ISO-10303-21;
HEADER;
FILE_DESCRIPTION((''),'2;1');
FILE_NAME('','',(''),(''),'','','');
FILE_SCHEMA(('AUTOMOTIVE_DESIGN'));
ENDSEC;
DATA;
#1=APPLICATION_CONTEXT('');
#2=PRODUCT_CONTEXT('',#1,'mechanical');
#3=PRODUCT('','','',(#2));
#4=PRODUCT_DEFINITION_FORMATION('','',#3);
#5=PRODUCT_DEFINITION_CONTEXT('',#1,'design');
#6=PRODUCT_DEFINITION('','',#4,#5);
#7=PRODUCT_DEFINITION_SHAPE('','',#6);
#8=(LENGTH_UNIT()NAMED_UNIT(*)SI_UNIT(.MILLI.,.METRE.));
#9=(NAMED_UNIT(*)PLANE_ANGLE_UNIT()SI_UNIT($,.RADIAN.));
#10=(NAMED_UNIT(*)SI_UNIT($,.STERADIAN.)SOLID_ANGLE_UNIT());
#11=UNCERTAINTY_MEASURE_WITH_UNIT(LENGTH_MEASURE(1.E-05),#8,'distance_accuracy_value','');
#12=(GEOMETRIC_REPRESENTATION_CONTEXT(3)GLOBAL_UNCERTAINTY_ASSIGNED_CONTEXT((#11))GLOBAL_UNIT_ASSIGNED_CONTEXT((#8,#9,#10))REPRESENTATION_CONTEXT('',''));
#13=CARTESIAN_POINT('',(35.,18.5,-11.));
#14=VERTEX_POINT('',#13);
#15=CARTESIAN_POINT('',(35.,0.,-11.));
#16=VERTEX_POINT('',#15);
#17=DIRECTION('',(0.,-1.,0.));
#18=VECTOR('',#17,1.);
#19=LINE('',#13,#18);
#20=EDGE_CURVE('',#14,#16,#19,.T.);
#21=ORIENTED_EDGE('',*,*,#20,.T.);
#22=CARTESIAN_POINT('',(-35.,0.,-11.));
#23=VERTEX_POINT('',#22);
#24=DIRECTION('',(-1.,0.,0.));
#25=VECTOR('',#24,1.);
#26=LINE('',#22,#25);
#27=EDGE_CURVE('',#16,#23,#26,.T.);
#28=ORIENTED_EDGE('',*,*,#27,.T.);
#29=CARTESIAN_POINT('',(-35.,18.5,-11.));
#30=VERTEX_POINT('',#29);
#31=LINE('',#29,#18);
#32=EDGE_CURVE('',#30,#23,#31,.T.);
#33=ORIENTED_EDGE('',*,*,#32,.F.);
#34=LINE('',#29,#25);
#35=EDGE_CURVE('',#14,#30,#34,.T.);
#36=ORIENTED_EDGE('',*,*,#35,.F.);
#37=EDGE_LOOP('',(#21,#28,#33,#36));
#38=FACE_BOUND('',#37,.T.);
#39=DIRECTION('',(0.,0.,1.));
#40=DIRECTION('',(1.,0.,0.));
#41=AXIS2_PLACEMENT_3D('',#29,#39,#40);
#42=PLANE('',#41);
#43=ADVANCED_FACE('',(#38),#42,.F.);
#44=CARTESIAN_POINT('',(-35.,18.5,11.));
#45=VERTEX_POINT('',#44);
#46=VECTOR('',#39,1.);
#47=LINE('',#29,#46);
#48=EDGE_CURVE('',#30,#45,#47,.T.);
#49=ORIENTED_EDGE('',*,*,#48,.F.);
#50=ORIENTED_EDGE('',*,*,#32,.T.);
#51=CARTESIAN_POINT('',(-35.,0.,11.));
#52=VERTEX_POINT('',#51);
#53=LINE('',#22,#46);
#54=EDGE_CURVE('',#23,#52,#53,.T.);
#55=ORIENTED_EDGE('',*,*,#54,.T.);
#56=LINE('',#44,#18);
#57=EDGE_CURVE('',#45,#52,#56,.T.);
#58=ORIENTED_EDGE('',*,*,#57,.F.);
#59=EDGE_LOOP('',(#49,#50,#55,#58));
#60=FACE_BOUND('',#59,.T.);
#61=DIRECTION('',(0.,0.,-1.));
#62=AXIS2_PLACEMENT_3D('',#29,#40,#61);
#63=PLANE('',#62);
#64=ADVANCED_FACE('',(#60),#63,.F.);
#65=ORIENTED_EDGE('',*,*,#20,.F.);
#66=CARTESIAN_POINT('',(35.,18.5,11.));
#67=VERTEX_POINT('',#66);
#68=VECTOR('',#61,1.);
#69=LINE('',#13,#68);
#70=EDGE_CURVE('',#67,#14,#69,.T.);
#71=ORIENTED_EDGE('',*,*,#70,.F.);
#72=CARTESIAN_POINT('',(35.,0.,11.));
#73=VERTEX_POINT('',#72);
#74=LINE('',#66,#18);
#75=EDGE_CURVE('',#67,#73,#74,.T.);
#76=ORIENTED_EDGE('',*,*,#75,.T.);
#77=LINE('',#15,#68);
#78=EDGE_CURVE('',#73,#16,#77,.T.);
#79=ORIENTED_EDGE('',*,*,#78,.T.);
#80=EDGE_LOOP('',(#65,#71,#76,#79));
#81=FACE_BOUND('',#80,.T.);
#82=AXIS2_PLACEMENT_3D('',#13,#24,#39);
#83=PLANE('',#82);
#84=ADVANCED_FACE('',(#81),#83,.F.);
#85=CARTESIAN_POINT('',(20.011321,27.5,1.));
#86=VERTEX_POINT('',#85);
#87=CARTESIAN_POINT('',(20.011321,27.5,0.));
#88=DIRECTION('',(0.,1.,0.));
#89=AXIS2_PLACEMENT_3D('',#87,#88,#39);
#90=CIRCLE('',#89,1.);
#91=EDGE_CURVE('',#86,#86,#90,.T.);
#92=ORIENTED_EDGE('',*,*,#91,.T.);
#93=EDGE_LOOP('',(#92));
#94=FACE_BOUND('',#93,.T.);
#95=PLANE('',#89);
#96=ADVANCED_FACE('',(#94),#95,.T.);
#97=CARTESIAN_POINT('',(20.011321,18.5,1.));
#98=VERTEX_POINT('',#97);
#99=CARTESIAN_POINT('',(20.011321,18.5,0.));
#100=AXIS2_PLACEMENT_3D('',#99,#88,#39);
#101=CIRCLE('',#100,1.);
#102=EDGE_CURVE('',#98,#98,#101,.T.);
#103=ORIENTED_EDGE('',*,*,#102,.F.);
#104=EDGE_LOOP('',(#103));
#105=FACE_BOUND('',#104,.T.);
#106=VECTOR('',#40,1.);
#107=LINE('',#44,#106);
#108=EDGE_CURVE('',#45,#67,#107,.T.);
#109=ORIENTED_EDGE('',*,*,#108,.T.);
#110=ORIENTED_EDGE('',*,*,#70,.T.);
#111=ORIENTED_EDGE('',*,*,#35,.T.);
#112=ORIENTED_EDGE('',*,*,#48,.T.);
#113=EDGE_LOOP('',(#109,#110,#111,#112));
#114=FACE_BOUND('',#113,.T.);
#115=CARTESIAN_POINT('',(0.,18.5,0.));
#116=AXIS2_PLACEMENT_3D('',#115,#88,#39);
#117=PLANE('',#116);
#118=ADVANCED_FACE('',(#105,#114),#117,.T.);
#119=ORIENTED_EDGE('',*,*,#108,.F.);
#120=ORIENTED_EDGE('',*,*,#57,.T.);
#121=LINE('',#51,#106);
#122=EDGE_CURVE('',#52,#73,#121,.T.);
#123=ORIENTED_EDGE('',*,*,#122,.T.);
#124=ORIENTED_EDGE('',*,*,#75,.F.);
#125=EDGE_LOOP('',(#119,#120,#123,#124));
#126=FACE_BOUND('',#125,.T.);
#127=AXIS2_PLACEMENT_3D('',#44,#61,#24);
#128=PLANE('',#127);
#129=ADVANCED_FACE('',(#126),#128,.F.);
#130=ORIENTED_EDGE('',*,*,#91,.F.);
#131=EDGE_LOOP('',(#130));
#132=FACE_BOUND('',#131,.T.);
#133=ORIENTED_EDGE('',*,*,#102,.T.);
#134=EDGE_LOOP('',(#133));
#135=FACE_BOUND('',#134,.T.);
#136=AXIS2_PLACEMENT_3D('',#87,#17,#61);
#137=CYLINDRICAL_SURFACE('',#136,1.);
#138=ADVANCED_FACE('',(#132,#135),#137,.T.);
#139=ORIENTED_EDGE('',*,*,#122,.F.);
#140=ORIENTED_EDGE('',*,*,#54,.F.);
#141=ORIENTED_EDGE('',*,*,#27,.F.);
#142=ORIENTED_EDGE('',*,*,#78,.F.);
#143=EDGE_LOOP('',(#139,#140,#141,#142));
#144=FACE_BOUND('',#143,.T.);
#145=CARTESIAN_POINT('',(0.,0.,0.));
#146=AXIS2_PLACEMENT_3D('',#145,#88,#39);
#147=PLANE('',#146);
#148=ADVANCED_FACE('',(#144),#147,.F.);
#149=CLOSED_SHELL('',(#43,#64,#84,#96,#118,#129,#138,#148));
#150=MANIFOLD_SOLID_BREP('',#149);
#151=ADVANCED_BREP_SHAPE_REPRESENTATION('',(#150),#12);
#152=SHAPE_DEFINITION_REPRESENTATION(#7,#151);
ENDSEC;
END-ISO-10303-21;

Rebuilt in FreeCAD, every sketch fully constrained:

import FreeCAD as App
import Part
import Sketcher

V = App.Vector
Q = App.Units.Quantity


def add_polygon(sketch, points):
    """Adds a closed chain of lines whose ends are joined by coincident constraints."""
    first, n = sketch.GeometryCount, len(points)
    for a, b in zip(points, points[1:] + points[:1]):
        sketch.addGeometry(Part.LineSegment(App.Vector(*a, 0), App.Vector(*b, 0)), False)
    for i in range(n):
        sketch.addConstraint(Sketcher.Constraint("Coincident", first + i, 2, first + (i + 1) % n, 1))

doc = App.newDocument("Part")
body = doc.addObject("PartDesign::Body", "Body")

# Sketch on XZ plane
sketch1 = body.newObject("Sketcher::SketchObject", "Sketch")
sketch1.AttachmentSupport = (doc.getObject("XZ_Plane"), [""])
sketch1.MapMode = "FlatFace"
add_polygon(sketch1, [(-35, -11), (-35, 11), (35, 11), (35, -11)])  # lines 0-3
sketch1.addConstraint([
    Sketcher.Constraint("Vertical", 0),
    Sketcher.Constraint("Horizontal", 1),
    Sketcher.Constraint("Vertical", 2),
    Sketcher.Constraint("Horizontal", 3),
    Sketcher.Constraint("Symmetric", 0, 2, 2, 2, -1, 1),
    Sketcher.Constraint("DistanceX", 1, 1, 1, 2, Q("70 mm")),
    Sketcher.Constraint("DistanceY", 0, 1, 0, 2, Q("22 mm")),
])
pad1 = body.newObject("PartDesign::Pad", "Pad")
pad1.Profile = sketch1
pad1.Length = 18.5
pad1.Reversed = True

# Sketch on XZ plane
sketch2 = body.newObject("Sketcher::SketchObject", "Sketch001")
sketch2.AttachmentSupport = (doc.getObject("XZ_Plane"), [""])
sketch2.MapMode = "FlatFace"
sketch2.AttachmentOffset = App.Placement(V(0, 0, -18.5), App.Rotation())
sketch2.addGeometry(Part.Circle(V(20, 0, 0), V(0, 0, 1), 1), False)
sketch2.addConstraint([
    Sketcher.Constraint("PointOnObject", 0, 3, -1),
    Sketcher.Constraint("Diameter", 0, Q("2 mm")),
    Sketcher.Constraint("DistanceX", -1, 1, 0, 3, Q("20.011321 mm")),
])
pad2 = body.newObject("PartDesign::Pad", "Pad001")
pad2.Profile = sketch2
pad2.Length = 9
pad2.Reversed = True

doc.recompute()
